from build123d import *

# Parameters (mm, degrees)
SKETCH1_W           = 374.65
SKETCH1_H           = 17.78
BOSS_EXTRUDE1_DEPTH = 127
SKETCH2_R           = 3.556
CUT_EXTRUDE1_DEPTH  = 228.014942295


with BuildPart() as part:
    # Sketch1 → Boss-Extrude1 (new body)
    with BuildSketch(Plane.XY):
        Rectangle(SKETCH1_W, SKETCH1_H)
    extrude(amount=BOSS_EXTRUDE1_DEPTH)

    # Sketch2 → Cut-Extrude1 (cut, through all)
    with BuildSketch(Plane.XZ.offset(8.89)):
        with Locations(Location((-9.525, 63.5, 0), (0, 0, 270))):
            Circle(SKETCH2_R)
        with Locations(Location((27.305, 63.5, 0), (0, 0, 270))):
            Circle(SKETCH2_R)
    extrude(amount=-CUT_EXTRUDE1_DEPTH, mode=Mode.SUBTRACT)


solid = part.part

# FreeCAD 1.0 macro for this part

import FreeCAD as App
import Part
import Sketcher
from FreeCAD import Vector
Q = App.Units.Quantity

doc = App.newDocument("Part")
body = doc.addObject("PartDesign::Body", "Body")

sketch1 = body.newObject("Sketcher::SketchObject", "Sketch")
sketch1.AttachmentSupport = (doc.getObject("XY_Plane"), [""])
sketch1.MapMode = "FlatFace"
sketch1.addGeometry([
    Part.LineSegment(Vector(-187, 9, 0), Vector(-187, -9, 0)),
    Part.LineSegment(Vector(-187, -9, 0), Vector(187, -9, 0)),
    Part.LineSegment(Vector(187, -9, 0), Vector(187, 9, 0)),
    Part.LineSegment(Vector(187, 9, 0), Vector(-187, 9, 0)),
], False)
sketch1.addConstraint([
    Sketcher.Constraint("Coincident", 0, 2, 1, 1),
    Sketcher.Constraint("Coincident", 1, 2, 2, 1),
    Sketcher.Constraint("Coincident", 2, 2, 3, 1),
    Sketcher.Constraint("Coincident", 3, 2, 0, 1),
    Sketcher.Constraint("Vertical", 0),
    Sketcher.Constraint("Horizontal", 1),
    Sketcher.Constraint("Vertical", 2),
    Sketcher.Constraint("Horizontal", 3),
    Sketcher.Constraint("Symmetric", 0, 2, 2, 2, -1, 1),
    Sketcher.Constraint("DistanceY", 0, 2, 0, 1, Q("0.7 in")),
    Sketcher.Constraint("DistanceX", 1, 1, 1, 2, Q("14.75 in")),
])
pad1 = body.newObject("PartDesign::Pad", "Pad")
pad1.Profile = sketch1
pad1.Length = Q("5 in")

sketch2 = body.newObject("Sketcher::SketchObject", "Sketch001")
sketch2.AttachmentSupport = (doc.getObject("XZ_Plane"), [""])
sketch2.MapMode = "FlatFace"
sketch2.AttachmentOffset = App.Placement(Vector(0, 0, 0.35 * 25.4), App.Rotation())
sketch2.addGeometry([
    Part.Circle(Vector(-9.5, 63.5, 0), Vector(0, 0, 1), 3.6),
    Part.Circle(Vector(27.3, 63.5, 0), Vector(0, 0, 1), 3.6),
], False)
sketch2.addConstraint([
    Sketcher.Constraint("Equal", 0, 1),
    Sketcher.Constraint("Horizontal", 0, 3, 1, 3),
    Sketcher.Constraint("Diameter", 0, Q("0.28 in")),
    Sketcher.Constraint("DistanceY", -1, 1, 0, 3, Q("2.5 in")),
    Sketcher.Constraint("DistanceX", 0, 3, 1, 3, Q("1.45 in")),
    Sketcher.Constraint("DistanceX", 0, 3, -1, 1, Q("0.375 in")),
])
pocket1 = body.newObject("PartDesign::Pocket", "Pocket")
pocket1.Profile = sketch2
pocket1.Type = "ThroughAll"

doc.recompute()
